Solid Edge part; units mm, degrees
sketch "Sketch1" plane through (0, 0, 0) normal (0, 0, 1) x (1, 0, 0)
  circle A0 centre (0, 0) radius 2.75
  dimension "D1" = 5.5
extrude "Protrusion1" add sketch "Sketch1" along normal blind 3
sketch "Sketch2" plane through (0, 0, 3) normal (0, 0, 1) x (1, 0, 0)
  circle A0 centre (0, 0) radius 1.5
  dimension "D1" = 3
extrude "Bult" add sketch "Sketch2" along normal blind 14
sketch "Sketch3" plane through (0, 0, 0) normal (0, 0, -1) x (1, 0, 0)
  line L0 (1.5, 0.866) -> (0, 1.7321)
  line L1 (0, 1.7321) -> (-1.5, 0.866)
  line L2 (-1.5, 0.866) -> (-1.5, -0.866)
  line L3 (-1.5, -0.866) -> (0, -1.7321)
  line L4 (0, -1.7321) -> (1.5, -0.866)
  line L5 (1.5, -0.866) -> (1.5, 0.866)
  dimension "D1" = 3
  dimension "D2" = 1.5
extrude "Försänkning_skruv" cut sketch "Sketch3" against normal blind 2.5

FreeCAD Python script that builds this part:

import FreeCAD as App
import Part
import Sketcher

V = App.Vector
Q = App.Units.Quantity


def add_polygon(sketch, points):
    """Adds a closed chain of lines whose ends are joined by coincident constraints."""
    first, n = sketch.GeometryCount, len(points)
    for a, b in zip(points, points[1:] + points[:1]):
        sketch.addGeometry(Part.LineSegment(App.Vector(*a, 0), App.Vector(*b, 0)), False)
    for i in range(n):
        sketch.addConstraint(Sketcher.Constraint("Coincident", first + i, 2, first + (i + 1) % n, 1))

doc = App.newDocument("Part")
params = doc.addObject("Spreadsheet::Sheet", "Params")
for row, (alias, value) in enumerate([
    ("sketch1_diameter", "5.5 mm"),
    ("pad1_length", "3 mm"),
    ("sketch2_diameter", "3 mm"),
    ("pad2_length", "14 mm"),
    ("pocket1_length", "2.5 mm"),
], start=1):
    params.set(f"A{row}", alias)
    params.set(f"B{row}", "=" + value)
    params.setAlias(f"B{row}", alias)

body = doc.addObject("PartDesign::Body", "Body")

sketch1 = doc.addObject("Sketcher::SketchObject", "Sketch")
body.addObject(sketch1)
sketch1.AttachmentSupport = (doc.XY_Plane, [""])
sketch1.MapMode = "FlatFace"
sketch1.addGeometry(Part.Circle(V(0, 0, 0), V(0, 0, 1), 2.8), False)
sketch1.addConstraint(Sketcher.Constraint("Coincident", 0, 3, -1, 1))
sketch1.addConstraint(Sketcher.Constraint("Diameter", 0, Q("5.5 mm")))
sketch1.setExpression("Constraints[1]", "Params.sketch1_diameter")
pad1 = doc.addObject("PartDesign::Pad", "Pad")
body.addObject(pad1)
pad1.Profile = sketch1
pad1.setExpression("Length", "Params.pad1_length")

sketch2 = doc.addObject("Sketcher::SketchObject", "Sketch001")
body.addObject(sketch2)
sketch2.AttachmentSupport = (doc.XY_Plane, [""])
sketch2.MapMode = "FlatFace"
sketch2.AttachmentOffset = App.Placement(V(0, 0, 3), App.Rotation())
sketch2.addGeometry(Part.Circle(V(0, 0, 0), V(0, 0, 1), 1.5), False)
sketch2.addConstraint(Sketcher.Constraint("Coincident", 0, 3, -1, 1))
sketch2.addConstraint(Sketcher.Constraint("Diameter", 0, Q("3 mm")))
sketch2.setExpression("Constraints[1]", "Params.sketch2_diameter")
pad2 = doc.addObject("PartDesign::Pad", "Pad001")
body.addObject(pad2)
pad2.Profile = sketch2
pad2.setExpression("Length", "Params.pad2_length")

sketch3 = doc.addObject("Sketcher::SketchObject", "Sketch002")
body.addObject(sketch3)
sketch3.AttachmentSupport = (doc.XY_Plane, [""])
sketch3.MapMode = "FlatFace"
add_polygon(sketch3, [(1.5, 0.9), (1.5, -0.9), (0, -1.7), (-1.5, -0.9), (-1.5, 0.9), (0, 1.7)])
sketch3.addConstraint(Sketcher.Constraint("Vertical", 0))
sketch3.addConstraint(Sketcher.Constraint("Vertical", 3))
sketch3.addConstraint(Sketcher.Constraint("Symmetric", 0, 2, 3, 2, -1, 1))
sketch3.addConstraint(Sketcher.Constraint("Symmetric", 1, 2, 4, 2, -1, 1))
sketch3.addConstraint(Sketcher.Constraint("PointOnObject", 1, 2, -2))
sketch3.addConstraint(Sketcher.Constraint("Parallel", 2, 5))
sketch3.addConstraint(Sketcher.Constraint("Horizontal", 0, 2, 2, 2))
sketch3.addConstraint(Sketcher.Constraint("DistanceX", -1, 1, 0, 2, Q("1.5 mm")))
sketch3.addConstraint(Sketcher.Constraint("DistanceY", 0, 2, 0, 1, Q("1.732 mm")))
sketch3.addConstraint(Sketcher.Constraint("Distance", 1, Q("1.732 mm")))
pocket1 = doc.addObject("PartDesign::Pocket", "Pocket")
body.addObject(pocket1)
pocket1.Profile = sketch3
pocket1.setExpression("Length", "Params.pocket1_length")
pocket1.Reversed = True

doc.recompute()
